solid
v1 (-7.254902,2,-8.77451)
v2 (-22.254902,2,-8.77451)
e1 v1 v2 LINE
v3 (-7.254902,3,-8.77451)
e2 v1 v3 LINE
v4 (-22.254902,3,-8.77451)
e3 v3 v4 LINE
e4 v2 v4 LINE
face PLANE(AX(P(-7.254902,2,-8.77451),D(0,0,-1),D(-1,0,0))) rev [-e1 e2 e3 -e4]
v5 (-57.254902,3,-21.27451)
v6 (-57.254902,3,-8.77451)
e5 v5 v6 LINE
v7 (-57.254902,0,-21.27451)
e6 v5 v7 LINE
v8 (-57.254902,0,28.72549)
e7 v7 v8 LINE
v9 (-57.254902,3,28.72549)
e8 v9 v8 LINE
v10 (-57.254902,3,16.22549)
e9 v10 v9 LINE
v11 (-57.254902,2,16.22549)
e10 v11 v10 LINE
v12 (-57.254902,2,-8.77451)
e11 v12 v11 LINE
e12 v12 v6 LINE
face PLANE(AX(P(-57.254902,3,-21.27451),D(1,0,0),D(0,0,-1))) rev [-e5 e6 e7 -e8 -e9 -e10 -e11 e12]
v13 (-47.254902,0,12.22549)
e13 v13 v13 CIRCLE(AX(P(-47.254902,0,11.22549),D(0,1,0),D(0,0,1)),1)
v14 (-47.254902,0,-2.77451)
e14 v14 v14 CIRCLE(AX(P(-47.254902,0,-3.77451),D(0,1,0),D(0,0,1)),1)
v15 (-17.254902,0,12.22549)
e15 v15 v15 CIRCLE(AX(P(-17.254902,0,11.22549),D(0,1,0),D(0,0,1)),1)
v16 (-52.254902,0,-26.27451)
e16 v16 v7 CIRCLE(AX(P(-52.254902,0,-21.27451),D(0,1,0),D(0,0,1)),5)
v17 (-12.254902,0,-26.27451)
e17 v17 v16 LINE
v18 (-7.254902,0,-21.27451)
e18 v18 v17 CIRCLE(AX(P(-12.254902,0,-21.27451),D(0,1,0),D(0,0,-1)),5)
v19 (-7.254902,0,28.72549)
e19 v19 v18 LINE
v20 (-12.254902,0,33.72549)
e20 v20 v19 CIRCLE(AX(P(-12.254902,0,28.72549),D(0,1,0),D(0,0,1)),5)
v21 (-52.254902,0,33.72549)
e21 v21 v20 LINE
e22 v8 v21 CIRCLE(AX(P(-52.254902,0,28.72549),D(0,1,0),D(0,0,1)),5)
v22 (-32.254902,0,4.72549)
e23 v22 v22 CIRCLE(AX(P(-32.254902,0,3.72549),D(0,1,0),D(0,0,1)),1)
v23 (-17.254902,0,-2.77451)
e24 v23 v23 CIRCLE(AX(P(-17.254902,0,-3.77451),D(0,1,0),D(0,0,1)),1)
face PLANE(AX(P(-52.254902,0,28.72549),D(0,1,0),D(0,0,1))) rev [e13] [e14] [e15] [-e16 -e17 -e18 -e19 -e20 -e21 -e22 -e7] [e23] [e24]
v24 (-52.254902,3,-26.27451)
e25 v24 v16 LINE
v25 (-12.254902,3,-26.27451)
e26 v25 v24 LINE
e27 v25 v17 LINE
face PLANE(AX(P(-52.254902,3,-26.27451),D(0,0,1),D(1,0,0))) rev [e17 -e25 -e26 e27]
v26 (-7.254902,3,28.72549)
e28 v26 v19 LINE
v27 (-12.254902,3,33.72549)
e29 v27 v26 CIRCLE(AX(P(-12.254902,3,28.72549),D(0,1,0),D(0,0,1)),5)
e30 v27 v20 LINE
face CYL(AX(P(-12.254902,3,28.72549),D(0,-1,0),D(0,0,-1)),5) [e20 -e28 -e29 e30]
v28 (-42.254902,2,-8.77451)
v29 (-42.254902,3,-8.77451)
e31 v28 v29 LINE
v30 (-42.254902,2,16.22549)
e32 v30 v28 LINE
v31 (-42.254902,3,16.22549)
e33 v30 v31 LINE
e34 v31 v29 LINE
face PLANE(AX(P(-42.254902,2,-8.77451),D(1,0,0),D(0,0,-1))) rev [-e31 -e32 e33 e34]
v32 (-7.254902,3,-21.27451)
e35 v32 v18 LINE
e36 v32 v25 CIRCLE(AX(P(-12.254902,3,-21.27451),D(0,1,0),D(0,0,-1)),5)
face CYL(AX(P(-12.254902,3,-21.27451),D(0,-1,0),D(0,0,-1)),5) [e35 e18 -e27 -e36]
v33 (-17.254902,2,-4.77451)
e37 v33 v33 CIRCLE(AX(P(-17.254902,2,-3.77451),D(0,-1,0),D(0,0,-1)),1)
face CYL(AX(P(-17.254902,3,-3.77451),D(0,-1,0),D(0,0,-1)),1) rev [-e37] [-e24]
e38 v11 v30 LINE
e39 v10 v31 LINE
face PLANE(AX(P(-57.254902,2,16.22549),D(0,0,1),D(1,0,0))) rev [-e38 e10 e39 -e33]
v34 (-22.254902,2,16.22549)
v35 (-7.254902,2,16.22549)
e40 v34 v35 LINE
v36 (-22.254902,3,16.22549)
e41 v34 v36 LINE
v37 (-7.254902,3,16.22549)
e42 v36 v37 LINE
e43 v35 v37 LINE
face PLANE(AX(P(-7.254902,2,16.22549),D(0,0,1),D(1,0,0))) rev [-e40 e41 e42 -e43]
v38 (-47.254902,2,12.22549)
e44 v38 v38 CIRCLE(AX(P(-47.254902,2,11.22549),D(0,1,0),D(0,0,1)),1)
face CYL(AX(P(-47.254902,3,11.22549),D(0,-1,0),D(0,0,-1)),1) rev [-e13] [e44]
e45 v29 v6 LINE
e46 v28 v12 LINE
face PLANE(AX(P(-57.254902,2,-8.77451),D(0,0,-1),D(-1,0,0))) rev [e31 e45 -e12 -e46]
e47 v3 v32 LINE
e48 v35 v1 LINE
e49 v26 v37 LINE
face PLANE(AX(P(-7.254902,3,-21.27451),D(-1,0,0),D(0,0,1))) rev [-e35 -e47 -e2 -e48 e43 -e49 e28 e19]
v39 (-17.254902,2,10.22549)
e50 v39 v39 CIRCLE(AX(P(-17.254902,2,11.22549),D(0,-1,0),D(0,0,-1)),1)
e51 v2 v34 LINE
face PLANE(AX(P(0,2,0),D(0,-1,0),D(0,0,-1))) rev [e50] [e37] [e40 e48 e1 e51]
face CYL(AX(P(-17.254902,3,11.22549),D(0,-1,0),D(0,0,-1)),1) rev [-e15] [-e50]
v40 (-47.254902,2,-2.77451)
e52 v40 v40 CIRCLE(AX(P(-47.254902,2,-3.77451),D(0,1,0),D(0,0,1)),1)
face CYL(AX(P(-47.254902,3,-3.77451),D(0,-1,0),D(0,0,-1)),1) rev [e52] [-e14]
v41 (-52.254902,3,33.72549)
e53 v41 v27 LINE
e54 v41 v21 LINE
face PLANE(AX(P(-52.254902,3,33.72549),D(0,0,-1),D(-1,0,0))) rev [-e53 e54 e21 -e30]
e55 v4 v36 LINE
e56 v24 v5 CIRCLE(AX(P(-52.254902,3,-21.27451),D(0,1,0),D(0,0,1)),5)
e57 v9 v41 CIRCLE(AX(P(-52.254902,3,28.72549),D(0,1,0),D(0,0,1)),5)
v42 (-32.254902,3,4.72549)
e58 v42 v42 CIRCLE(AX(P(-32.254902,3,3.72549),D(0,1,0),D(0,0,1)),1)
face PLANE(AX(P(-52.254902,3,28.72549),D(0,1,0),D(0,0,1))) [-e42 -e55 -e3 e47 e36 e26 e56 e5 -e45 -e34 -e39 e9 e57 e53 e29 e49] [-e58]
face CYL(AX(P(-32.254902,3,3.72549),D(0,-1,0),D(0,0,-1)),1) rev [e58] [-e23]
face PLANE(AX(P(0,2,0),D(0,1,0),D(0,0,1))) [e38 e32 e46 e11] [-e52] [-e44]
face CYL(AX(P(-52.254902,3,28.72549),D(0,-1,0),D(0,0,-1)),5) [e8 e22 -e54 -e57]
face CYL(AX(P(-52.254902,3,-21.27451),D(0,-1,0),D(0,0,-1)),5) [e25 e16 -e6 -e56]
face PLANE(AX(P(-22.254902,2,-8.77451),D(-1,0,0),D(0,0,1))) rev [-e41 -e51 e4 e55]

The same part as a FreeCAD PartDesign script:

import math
import FreeCAD as App
import Part
import Sketcher

V = App.Vector

doc = App.newDocument("Part")
body = doc.addObject("PartDesign::Body", "Body")

sketch1 = body.newObject("Sketcher::SketchObject", "Sketch")
sketch1.AttachmentSupport = (doc.getObject("XZ_Plane"), [""])
sketch1.MapMode = "FlatFace"
sketch1.addGeometry([
    Part.LineSegment(V(-12.3, -26.3, 0), V(-52.3, -26.3, 0)),
    Part.ArcOfCircle(Part.Circle(V(-52.3, -21.3, 0), V(0, 0, 1), 5), math.radians(180), math.radians(270)),
    Part.LineSegment(V(-57.3, -21.3, 0), V(-57.3, 28.7, 0)),
    Part.ArcOfCircle(Part.Circle(V(-52.3, 28.7, 0), V(0, 0, 1), 5), math.radians(90), math.radians(180)),
    Part.LineSegment(V(-52.3, 33.7, 0), V(-12.3, 33.7, 0)),
    Part.ArcOfCircle(Part.Circle(V(-12.3, 28.7, 0), V(0, 0, 1), 5), math.radians(0), math.radians(90)),
    Part.LineSegment(V(-7.3, 28.7, 0), V(-7.3, -21.3, 0)),
    Part.ArcOfCircle(Part.Circle(V(-12.3, -21.3, 0), V(0, 0, 1), 5), math.radians(-90), math.radians(0)),
    Part.Circle(V(-17.3, 11.2, 0), V(0, 0, 1), 1),
    Part.Circle(V(-47.3, 11.2, 0), V(0, 0, 1), 1),
    Part.Circle(V(-17.3, -3.8, 0), V(0, 0, 1), 1),
    Part.Circle(V(-32.3, 3.7, 0), V(0, 0, 1), 1),
    Part.Circle(V(-47.3, -3.8, 0), V(0, 0, 1), 1),
], False)
sketch1.addConstraint([
    Sketcher.Constraint("Tangent", 0, 2, 1, 2),
    Sketcher.Constraint("Tangent", 1, 1, 2, 1),
    Sketcher.Constraint("Tangent", 2, 2, 3, 2),
    Sketcher.Constraint("Tangent", 3, 1, 4, 1),
    Sketcher.Constraint("Tangent", 4, 2, 5, 2),
    Sketcher.Constraint("Tangent", 5, 1, 6, 1),
    Sketcher.Constraint("Tangent", 6, 2, 7, 2),
    Sketcher.Constraint("Tangent", 7, 1, 0, 1),
    Sketcher.Constraint("Horizontal", 0),
    Sketcher.Constraint("Vertical", 2),
    Sketcher.Constraint("Horizontal", 4),
    Sketcher.Constraint("Vertical", 6),
    Sketcher.Constraint("Equal", 1, 3),
    Sketcher.Constraint("Equal", 3, 5),
    Sketcher.Constraint("Equal", 5, 7),
    Sketcher.Constraint("Equal", 8, 9),
    Sketcher.Constraint("Equal", 9, 10),
    Sketcher.Constraint("Equal", 10, 11),
    Sketcher.Constraint("Equal", 11, 12),
    Sketcher.Constraint("Horizontal", 8, 3, 9, 3),
    Sketcher.Constraint("Horizontal", 10, 3, 12, 3),
    Sketcher.Constraint("Vertical", 8, 3, 10, 3),
    Sketcher.Constraint("Vertical", 9, 3, 12, 3),
    Sketcher.Constraint("Diameter", 8, 2.0),
    Sketcher.Constraint("Radius", 1, 5.0),
    Sketcher.Constraint("DistanceX", 0, 2, 0, 1, 40.0),
    Sketcher.Constraint("DistanceY", 2, 1, 2, 2, 50.0),
    Sketcher.Constraint("DistanceX", 8, 3, 5, 3, 5.0),
    Sketcher.Constraint("DistanceX", 3, 3, 9, 3, 5.0),
    Sketcher.Constraint("DistanceY", 10, 3, 8, 3, 15.0),
    Sketcher.Constraint("DistanceX", 11, 3, 8, 3, 15.0),
    Sketcher.Constraint("DistanceY", 1, 3, 11, 3, 25.0),
    Sketcher.Constraint("DistanceY", 8, 3, 5, 3, 17.5),
    Sketcher.Constraint("DistanceX", 1, 3, -1, 1, 52.254902),
    Sketcher.Constraint("DistanceY", 1, 3, -1, 1, 21.27451),
])
pad1 = body.newObject("PartDesign::Pad", "Pad")
pad1.Profile = sketch1
pad1.Length = 3
pad1.Reversed = True

sketch2 = body.newObject("Sketcher::SketchObject", "Sketch001")
sketch2.AttachmentSupport = (doc.getObject("XZ_Plane"), [""])
sketch2.MapMode = "FlatFace"
sketch2.AttachmentOffset = App.Placement(V(0, 0, -3), App.Rotation())
sketch2.addGeometry([
    Part.LineSegment(V(-57, -9, 0), V(-57, 16, 0)),
    Part.LineSegment(V(-57, 16, 0), V(-42, 16, 0)),
    Part.LineSegment(V(-42, 16, 0), V(-42, -9, 0)),
    Part.LineSegment(V(-42, -9, 0), V(-57, -9, 0)),
], False)
sketch2.addConstraint([
    Sketcher.Constraint("Coincident", 0, 2, 1, 1),
    Sketcher.Constraint("Coincident", 1, 2, 2, 1),
    Sketcher.Constraint("Coincident", 2, 2, 3, 1),
    Sketcher.Constraint("Coincident", 3, 2, 0, 1),
    Sketcher.Constraint("Vertical", 0),
    Sketcher.Constraint("Horizontal", 1),
    Sketcher.Constraint("Vertical", 2),
    Sketcher.Constraint("Horizontal", 3),
    Sketcher.Constraint("DistanceX", 1, 1, 1, 2, 15.0),
    Sketcher.Constraint("DistanceY", 0, 1, 0, 2, 25.0),
    Sketcher.Constraint("DistanceX", 0, 2, -1, 1, 57.254902),
    Sketcher.Constraint("DistanceY", -1, 1, 0, 2, 16.22549),
])
pocket1 = body.newObject("PartDesign::Pocket", "Pocket")
pocket1.Profile = sketch2
pocket1.Length = 1
pocket1.Reversed = True

sketch3 = body.newObject("Sketcher::SketchObject", "Sketch002")
sketch3.AttachmentSupport = (doc.getObject("XZ_Plane"), [""])
sketch3.MapMode = "FlatFace"
sketch3.AttachmentOffset = App.Placement(V(0, 0, -3), App.Rotation())
sketch3.addGeometry([
    Part.LineSegment(V(-22, -9, 0), V(-22, 16, 0)),
    Part.LineSegment(V(-22, 16, 0), V(-7, 16, 0)),
    Part.LineSegment(V(-7, 16, 0), V(-7, -9, 0)),
    Part.LineSegment(V(-7, -9, 0), V(-22, -9, 0)),
], False)
sketch3.addConstraint([
    Sketcher.Constraint("Coincident", 0, 2, 1, 1),
    Sketcher.Constraint("Coincident", 1, 2, 2, 1),
    Sketcher.Constraint("Coincident", 2, 2, 3, 1),
    Sketcher.Constraint("Coincident", 3, 2, 0, 1),
    Sketcher.Constraint("Vertical", 0),
    Sketcher.Constraint("Horizontal", 1),
    Sketcher.Constraint("Vertical", 2),
    Sketcher.Constraint("Horizontal", 3),
    Sketcher.Constraint("DistanceX", 1, 1, 1, 2, 15.0),
    Sketcher.Constraint("DistanceY", 0, 1, 0, 2, 25.0),
    Sketcher.Constraint("DistanceX", 0, 2, -1, 1, 22.254902),
    Sketcher.Constraint("DistanceY", -1, 1, 0, 2, 16.22549),
])
pocket2 = body.newObject("PartDesign::Pocket", "Pocket001")
pocket2.Profile = sketch3
pocket2.Length = 1
pocket2.Reversed = True

doc.recompute()
